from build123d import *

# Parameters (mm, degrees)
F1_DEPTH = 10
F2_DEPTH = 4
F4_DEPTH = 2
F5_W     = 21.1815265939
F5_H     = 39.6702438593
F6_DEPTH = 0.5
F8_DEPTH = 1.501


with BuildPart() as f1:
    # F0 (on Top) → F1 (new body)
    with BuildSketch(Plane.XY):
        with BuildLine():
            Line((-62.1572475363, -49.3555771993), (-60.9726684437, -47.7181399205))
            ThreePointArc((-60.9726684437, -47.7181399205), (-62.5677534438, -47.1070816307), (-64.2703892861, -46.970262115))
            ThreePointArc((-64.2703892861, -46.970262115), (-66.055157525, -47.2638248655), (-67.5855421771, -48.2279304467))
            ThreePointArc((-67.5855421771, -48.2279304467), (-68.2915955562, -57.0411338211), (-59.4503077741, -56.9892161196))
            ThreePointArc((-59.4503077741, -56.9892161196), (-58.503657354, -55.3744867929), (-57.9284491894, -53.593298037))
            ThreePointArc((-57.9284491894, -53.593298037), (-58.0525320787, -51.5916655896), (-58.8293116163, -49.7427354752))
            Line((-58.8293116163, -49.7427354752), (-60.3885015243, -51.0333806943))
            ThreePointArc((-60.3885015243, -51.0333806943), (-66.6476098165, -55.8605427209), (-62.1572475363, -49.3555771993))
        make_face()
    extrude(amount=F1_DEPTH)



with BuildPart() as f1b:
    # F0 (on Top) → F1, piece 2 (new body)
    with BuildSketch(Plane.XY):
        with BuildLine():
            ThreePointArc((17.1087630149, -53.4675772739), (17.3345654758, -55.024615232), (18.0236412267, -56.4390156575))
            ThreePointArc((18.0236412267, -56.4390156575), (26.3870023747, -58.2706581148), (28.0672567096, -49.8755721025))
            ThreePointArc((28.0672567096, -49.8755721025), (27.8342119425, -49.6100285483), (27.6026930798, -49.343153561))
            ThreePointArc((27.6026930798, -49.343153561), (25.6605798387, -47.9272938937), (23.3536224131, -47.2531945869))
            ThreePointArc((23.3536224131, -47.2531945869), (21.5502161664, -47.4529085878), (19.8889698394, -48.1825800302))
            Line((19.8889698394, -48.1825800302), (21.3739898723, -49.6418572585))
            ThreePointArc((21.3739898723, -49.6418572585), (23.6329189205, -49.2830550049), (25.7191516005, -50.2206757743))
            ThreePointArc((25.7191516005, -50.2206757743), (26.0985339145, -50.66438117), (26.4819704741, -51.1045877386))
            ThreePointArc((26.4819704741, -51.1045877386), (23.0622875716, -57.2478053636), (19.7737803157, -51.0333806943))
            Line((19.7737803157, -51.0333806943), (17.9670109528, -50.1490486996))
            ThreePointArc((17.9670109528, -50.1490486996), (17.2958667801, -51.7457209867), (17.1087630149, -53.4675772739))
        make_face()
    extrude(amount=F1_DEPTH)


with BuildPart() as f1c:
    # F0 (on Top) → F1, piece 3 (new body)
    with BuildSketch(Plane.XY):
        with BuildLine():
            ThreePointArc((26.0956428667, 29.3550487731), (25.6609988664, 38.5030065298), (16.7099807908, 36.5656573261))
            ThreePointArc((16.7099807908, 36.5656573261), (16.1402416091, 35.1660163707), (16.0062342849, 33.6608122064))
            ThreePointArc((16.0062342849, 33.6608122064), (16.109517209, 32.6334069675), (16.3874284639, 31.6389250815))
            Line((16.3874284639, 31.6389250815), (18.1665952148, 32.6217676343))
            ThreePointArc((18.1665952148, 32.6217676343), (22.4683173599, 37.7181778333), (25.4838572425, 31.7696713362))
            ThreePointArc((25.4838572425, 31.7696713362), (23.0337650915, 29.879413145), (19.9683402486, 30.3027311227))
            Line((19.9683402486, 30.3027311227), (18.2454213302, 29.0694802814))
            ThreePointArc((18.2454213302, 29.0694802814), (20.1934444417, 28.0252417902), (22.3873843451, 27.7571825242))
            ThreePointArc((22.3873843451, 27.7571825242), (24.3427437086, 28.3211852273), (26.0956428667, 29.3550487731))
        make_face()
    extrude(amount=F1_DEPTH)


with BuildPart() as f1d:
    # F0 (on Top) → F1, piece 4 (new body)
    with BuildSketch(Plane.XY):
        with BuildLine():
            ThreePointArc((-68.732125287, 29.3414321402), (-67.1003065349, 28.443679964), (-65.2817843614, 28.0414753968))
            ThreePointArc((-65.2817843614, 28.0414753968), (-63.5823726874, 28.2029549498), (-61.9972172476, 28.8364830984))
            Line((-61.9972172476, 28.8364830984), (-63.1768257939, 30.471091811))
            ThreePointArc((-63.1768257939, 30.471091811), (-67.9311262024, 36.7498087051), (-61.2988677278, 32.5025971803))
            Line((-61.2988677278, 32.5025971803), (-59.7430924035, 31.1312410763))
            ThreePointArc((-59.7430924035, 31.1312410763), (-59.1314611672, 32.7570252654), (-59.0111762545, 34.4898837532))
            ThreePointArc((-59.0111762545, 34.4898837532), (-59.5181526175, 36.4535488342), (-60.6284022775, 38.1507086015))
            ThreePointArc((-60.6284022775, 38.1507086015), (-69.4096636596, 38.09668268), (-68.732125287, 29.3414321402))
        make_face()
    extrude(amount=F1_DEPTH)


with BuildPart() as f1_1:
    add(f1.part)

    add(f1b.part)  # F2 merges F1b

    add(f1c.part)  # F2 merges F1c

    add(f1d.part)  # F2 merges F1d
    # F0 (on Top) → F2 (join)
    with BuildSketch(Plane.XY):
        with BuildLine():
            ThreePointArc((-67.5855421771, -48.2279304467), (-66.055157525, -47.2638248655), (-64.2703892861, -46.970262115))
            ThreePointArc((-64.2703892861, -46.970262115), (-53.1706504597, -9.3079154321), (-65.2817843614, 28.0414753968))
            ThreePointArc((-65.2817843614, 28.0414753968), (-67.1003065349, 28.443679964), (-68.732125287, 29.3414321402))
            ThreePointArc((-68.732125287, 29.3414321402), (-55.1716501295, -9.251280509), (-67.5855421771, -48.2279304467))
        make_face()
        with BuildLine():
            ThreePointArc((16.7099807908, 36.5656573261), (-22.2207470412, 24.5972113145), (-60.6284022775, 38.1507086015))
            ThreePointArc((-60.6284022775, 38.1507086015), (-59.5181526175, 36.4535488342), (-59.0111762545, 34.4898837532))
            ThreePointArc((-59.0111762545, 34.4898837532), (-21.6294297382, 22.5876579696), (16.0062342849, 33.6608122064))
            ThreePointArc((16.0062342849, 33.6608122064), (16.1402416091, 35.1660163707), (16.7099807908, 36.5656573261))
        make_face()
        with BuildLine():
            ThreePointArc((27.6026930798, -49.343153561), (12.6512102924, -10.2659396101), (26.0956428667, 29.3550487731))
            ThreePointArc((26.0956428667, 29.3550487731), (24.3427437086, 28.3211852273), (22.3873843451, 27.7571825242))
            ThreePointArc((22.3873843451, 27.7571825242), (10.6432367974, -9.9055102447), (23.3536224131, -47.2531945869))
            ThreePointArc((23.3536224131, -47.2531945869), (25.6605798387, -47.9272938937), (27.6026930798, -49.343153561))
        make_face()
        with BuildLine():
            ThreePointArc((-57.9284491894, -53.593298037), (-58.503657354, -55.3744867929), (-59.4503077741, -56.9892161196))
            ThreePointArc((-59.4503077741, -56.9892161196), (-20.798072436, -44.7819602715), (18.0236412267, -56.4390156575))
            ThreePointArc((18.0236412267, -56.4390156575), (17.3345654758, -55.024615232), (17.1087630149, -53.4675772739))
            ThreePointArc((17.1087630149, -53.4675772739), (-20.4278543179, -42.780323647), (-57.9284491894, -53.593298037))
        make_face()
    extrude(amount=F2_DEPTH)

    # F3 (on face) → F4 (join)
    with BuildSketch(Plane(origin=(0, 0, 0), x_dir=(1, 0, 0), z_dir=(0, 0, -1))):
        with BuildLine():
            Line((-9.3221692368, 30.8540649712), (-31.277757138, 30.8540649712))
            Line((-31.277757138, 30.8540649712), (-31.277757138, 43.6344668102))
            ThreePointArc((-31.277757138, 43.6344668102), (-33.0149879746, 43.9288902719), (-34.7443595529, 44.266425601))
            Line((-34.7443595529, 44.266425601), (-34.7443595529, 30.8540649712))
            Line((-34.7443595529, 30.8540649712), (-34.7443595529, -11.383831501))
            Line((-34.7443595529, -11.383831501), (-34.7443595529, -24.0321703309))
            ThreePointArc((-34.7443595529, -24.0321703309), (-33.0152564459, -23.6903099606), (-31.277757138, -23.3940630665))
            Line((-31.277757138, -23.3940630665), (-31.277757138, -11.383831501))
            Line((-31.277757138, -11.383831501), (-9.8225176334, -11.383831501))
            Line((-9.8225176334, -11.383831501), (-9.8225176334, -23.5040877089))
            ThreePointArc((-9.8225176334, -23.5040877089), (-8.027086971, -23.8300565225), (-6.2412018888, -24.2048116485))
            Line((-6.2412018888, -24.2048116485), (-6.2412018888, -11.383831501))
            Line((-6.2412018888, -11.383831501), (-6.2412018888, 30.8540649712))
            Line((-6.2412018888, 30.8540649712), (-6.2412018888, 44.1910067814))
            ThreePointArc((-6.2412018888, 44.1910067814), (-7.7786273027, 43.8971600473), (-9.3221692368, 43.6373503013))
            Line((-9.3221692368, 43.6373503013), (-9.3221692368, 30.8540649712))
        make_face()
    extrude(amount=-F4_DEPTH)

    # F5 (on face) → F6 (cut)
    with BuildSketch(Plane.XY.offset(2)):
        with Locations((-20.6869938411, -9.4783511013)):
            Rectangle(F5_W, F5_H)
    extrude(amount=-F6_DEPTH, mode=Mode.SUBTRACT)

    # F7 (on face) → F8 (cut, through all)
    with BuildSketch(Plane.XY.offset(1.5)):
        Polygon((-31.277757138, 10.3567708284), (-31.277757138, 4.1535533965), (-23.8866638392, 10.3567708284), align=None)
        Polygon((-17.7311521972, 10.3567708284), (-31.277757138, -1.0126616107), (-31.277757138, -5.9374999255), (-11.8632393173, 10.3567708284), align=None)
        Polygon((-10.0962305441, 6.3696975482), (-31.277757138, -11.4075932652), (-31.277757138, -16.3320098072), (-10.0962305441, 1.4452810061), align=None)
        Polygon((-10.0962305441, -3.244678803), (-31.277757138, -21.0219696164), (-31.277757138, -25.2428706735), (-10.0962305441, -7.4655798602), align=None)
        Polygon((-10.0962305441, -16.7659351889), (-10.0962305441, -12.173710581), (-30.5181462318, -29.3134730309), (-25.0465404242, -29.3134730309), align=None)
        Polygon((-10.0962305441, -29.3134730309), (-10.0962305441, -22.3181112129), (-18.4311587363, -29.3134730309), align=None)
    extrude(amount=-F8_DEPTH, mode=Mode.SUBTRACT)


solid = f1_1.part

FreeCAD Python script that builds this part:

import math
import FreeCAD as App
import Part
import Sketcher


def add_polygon(sketch, points):
    """Adds a closed chain of lines whose ends are joined by coincident constraints."""
    first, n = sketch.GeometryCount, len(points)
    for a, b in zip(points, points[1:] + points[:1]):
        sketch.addGeometry(Part.LineSegment(App.Vector(*a, 0), App.Vector(*b, 0)), False)
    for i in range(n):
        sketch.addConstraint(Sketcher.Constraint("Coincident", first + i, 2, first + (i + 1) % n, 1))

doc = App.newDocument("Part")
params = doc.addObject("Spreadsheet::Sheet", "Params")
for row, (alias, value) in enumerate([
    ("sketch1_radius", "6 mm"),
    ("sketch1_radius2", "4 mm"),
    ("pad1_length", "10 mm"),
    ("sketch2_radius", "6 mm"),
    ("sketch2_radius2", "4 mm"),
    ("pad2_length", "10 mm"),
    ("sketch3_radius", "6 mm"),
    ("sketch3_radius2", "4 mm"),
    ("pad3_length", "10 mm"),
    ("sketch4_radius", "6 mm"),
    ("sketch4_radius2", "4 mm"),
    ("pad4_length", "10 mm"),
    ("pad5_length", "4 mm"),
    ("pad6_length", "2 mm"),
    ("pocket1_length", "0.5 mm"),
], start=1):
    params.set(f"A{row}", alias)
    params.set(f"B{row}", "=" + value)
    params.setAlias(f"B{row}", alias)

body = doc.addObject("PartDesign::Body", "Body")

sketch1 = body.newObject("Sketcher::SketchObject", "Sketch")
sketch1.AttachmentSupport = (doc.getObject("XY_Plane"), [""])
sketch1.MapMode = "FlatFace"
sketch1.addGeometry(Part.LineSegment(App.Vector(-62.2, -49.4, 0), App.Vector(-61, -47.7, 0)), False)
sketch1.addGeometry(Part.ArcOfCircle(Part.Circle(App.Vector(-63.9, -53, 0), App.Vector(0, 0, 1), 6), math.radians(61), math.radians(94)), False)
sketch1.addGeometry(Part.ArcOfCircle(Part.Circle(App.Vector(-64.4, -51.5, 0), App.Vector(0, 0, 1), 4.6), math.radians(88), math.radians(134)), False)
sketch1.addGeometry(Part.ArcOfCircle(Part.Circle(App.Vector(-63.9, -53, 0), App.Vector(0, 0, 1), 6), math.radians(128), math.radians(318)), False)
sketch1.addGeometry(Part.ArcOfCircle(Part.Circle(App.Vector(-66.4, -51.9, 0), App.Vector(0, 0, 1), 8.6), math.radians(-37), math.radians(-12)), False)
sketch1.addGeometry(Part.ArcOfCircle(Part.Circle(App.Vector(-63.9, -53, 0), App.Vector(0, 0, 1), 6), math.radians(-6), math.radians(32)), False)
sketch1.addGeometry(Part.LineSegment(App.Vector(-58.8, -49.7, 0), App.Vector(-60.4, -51, 0)), False)
sketch1.addGeometry(Part.ArcOfCircle(Part.Circle(App.Vector(-63.9, -53, 0), App.Vector(0, 0, 1), 4), math.radians(64), math.radians(389)), False)
sketch1.addConstraint(Sketcher.Constraint("Coincident", 0, 2, 1, 1))
sketch1.addConstraint(Sketcher.Constraint("Coincident", 1, 2, 2, 1))
sketch1.addConstraint(Sketcher.Constraint("Coincident", 2, 2, 3, 1))
sketch1.addConstraint(Sketcher.Constraint("Coincident", 3, 2, 4, 1))
sketch1.addConstraint(Sketcher.Constraint("Coincident", 4, 2, 5, 1))
sketch1.addConstraint(Sketcher.Constraint("Coincident", 5, 2, 6, 1))
sketch1.addConstraint(Sketcher.Constraint("Coincident", 6, 2, 7, 2))
sketch1.addConstraint(Sketcher.Constraint("Coincident", 7, 1, 0, 1))
sketch1.addConstraint(Sketcher.Constraint("Coincident", 3, 3, 1, 3))
sketch1.addConstraint(Sketcher.Constraint("Coincident", 5, 3, 1, 3))
sketch1.addConstraint(Sketcher.Constraint("Coincident", 7, 3, 1, 3))
sketch1.addConstraint(Sketcher.Constraint("Equal", 1, 3))
sketch1.addConstraint(Sketcher.Constraint("Equal", 3, 5))
sketch1.addConstraint(Sketcher.Constraint("Radius", 1, 6.0))
sketch1.addConstraint(Sketcher.Constraint("Radius", 7, 4.0))
sketch1.addConstraint(Sketcher.Constraint("Radius", 2, 4.561761))
sketch1.addConstraint(Sketcher.Constraint("Radius", 4, 8.607347))
sketch1.addConstraint(Sketcher.Constraint("DistanceY", 4, 2, -1, 1, 53.593298))
sketch1.addConstraint(Sketcher.Constraint("DistanceX", 6, 2, -1, 1, 60.388502))
sketch1.addConstraint(Sketcher.Constraint("DistanceX", 2, 3, 1, 2, 0.166699))
sketch1.addConstraint(Sketcher.Constraint("DistanceY", 2, 3, 7, 1, 2.173399))
sketch1.addConstraint(Sketcher.Constraint("DistanceX", 2, 3, -1, 1, 64.437089))
sketch1.addConstraint(Sketcher.Constraint("DistanceX", 4, 3, -1, 1, 66.35833))
sketch1.addConstraint(Sketcher.Constraint("DistanceX", 0, 2, -1, 1, 60.972668))
sketch1.addConstraint(Sketcher.Constraint("DistanceY", 0, 2, -1, 1, 47.71814))
sketch1.addConstraint(Sketcher.Constraint("DistanceY", 2, 2, -1, 1, 48.22793))
sketch1.addConstraint(Sketcher.Constraint("DistanceX", 5, 2, -1, 1, 58.829312))
sketch1.setExpression("Constraints[13]", "Params.sketch1_radius")
sketch1.setExpression("Constraints[14]", "Params.sketch1_radius2")
pad1 = body.newObject("PartDesign::Pad", "Pad")
pad1.Profile = sketch1
pad1.setExpression("Length", "Params.pad1_length")
body2 = doc.addObject("PartDesign::Body", "Body001")

sketch2 = body2.newObject("Sketcher::SketchObject", "Sketch001")
sketch2.AttachmentSupport = (doc.getObject("XY_Plane001"), [""])
sketch2.MapMode = "FlatFace"
sketch2.addGeometry(Part.ArcOfCircle(Part.Circle(App.Vector(22.2, -53.5, 0), App.Vector(0, 0, 1), 5.1), math.radians(179), math.radians(215)), False)
sketch2.addGeometry(Part.ArcOfCircle(Part.Circle(App.Vector(23.1, -53.2, 0), App.Vector(0, 0, 1), 6), math.radians(-148), math.radians(34)), False)
sketch2.addGeometry(Part.ArcOfCircle(Part.Circle(App.Vector(74.3, -9.1, 0), App.Vector(0, 0, 1), 61.6), math.radians(-139.22), math.radians(-138.57)), False)
sketch2.addGeometry(Part.ArcOfCircle(Part.Circle(App.Vector(22.6, -54.2, 0), App.Vector(0, 0, 1), 7), math.radians(44), math.radians(84)), False)
sketch2.addGeometry(Part.ArcOfCircle(Part.Circle(App.Vector(23.1, -53.2, 0), App.Vector(0, 0, 1), 6), math.radians(88), math.radians(122)), False)
sketch2.addGeometry(Part.LineSegment(App.Vector(19.9, -48.2, 0), App.Vector(21.4, -49.6, 0)), False)
sketch2.addGeometry(Part.ArcOfCircle(Part.Circle(App.Vector(23.1, -53.2, 0), App.Vector(0, 0, 1), 4), math.radians(49), math.radians(116)), False)
sketch2.addGeometry(Part.ArcOfCircle(Part.Circle(App.Vector(74.3, -9.1, 0), App.Vector(0, 0, 1), 63.6), math.radians(-139.73), math.radians(-138.68)), False)
sketch2.addGeometry(Part.ArcOfCircle(Part.Circle(App.Vector(23.1, -53.2, 0), App.Vector(0, 0, 1), 4), math.radians(146), math.radians(392)), False)
sketch2.addGeometry(Part.LineSegment(App.Vector(19.8, -51, 0), App.Vector(18, -50.1, 0)), False)
sketch2.addGeometry(Part.ArcOfCircle(Part.Circle(App.Vector(23.1, -53.2, 0), App.Vector(0, 0, 1), 6), math.radians(149), math.radians(182)), False)
sketch2.addConstraint(Sketcher.Constraint("Coincident", 0, 2, 1, 1))
sketch2.addConstraint(Sketcher.Constraint("Coincident", 1, 2, 2, 2))
sketch2.addConstraint(Sketcher.Constraint("Coincident", 2, 1, 3, 1))
sketch2.addConstraint(Sketcher.Constraint("Coincident", 3, 2, 4, 1))
sketch2.addConstraint(Sketcher.Constraint("Coincident", 4, 2, 5, 1))
sketch2.addConstraint(Sketcher.Constraint("Coincident", 5, 2, 6, 2))
sketch2.addConstraint(Sketcher.Constraint("Coincident", 6, 1, 7, 1))
sketch2.addConstraint(Sketcher.Constraint("Coincident", 7, 2, 8, 2))
sketch2.addConstraint(Sketcher.Constraint("Coincident", 8, 1, 9, 1))
sketch2.addConstraint(Sketcher.Constraint("Coincident", 9, 2, 10, 1))
sketch2.addConstraint(Sketcher.Constraint("Coincident", 10, 2, 0, 1))
sketch2.addConstraint(Sketcher.Constraint("Coincident", 4, 3, 1, 3))
sketch2.addConstraint(Sketcher.Constraint("Coincident", 6, 3, 1, 3))
sketch2.addConstraint(Sketcher.Constraint("Coincident", 7, 3, 2, 3))
sketch2.addConstraint(Sketcher.Constraint("Coincident", 8, 3, 1, 3))
sketch2.addConstraint(Sketcher.Constraint("Coincident", 10, 3, 1, 3))
sketch2.addConstraint(Sketcher.Constraint("Equal", 1, 4))
sketch2.addConstraint(Sketcher.Constraint("Equal", 6, 8))
sketch2.addConstraint(Sketcher.Constraint("Equal", 4, 10))
sketch2.addConstraint(Sketcher.Constraint("Radius", 1, 6.0))
sketch2.addConstraint(Sketcher.Constraint("Radius", 6, 4.0))
sketch2.addConstraint(Sketcher.Constraint("Radius", 7, 63.639502))
sketch2.addConstraint(Sketcher.Constraint("Radius", 2, 61.63755))
sketch2.addConstraint(Sketcher.Constraint("Radius", 0, 5.106617))
sketch2.addConstraint(Sketcher.Constraint("Radius", 3, 6.987953))
sketch2.addConstraint(Sketcher.Constraint("DistanceX", 5, 2, 0, 3, 0.841101))
sketch2.addConstraint(Sketcher.Constraint("DistanceY", 8, 1, 4, 2, 2.850801))
sketch2.addConstraint(Sketcher.Constraint("DistanceY", 0, 3, 9, 2, 3.372898))
sketch2.addConstraint(Sketcher.Constraint("Distance", 9, 2.011581))
sketch2.addConstraint(Sketcher.Constraint("DistanceX", -1, 1, 0, 3, 22.215091))
sketch2.addConstraint(Sketcher.Constraint("DistanceY", 1, 3, -1, 1, 53.248031))
sketch2.addConstraint(Sketcher.Constraint("DistanceX", -1, 1, 2, 3, 74.277461))
sketch2.addConstraint(Sketcher.Constraint("DistanceY", 2, 3, -1, 1, 9.085811))
sketch2.addConstraint(Sketcher.Constraint("DistanceX", -1, 1, 3, 3, 22.576359))
sketch2.addConstraint(Sketcher.Constraint("DistanceX", -1, 1, 0, 2, 18.023641))
sketch2.addConstraint(Sketcher.Constraint("DistanceX", -1, 1, 4, 2, 19.88897))
sketch2.addConstraint(Sketcher.Constraint("DistanceY", 3, 3, 0, 3, 0.675839))
sketch2.setExpression("Constraints[19]", "Params.sketch2_radius")
sketch2.setExpression("Constraints[20]", "Params.sketch2_radius2")
pad2 = body2.newObject("PartDesign::Pad", "Pad001")
pad2.Profile = sketch2
pad2.setExpression("Length", "Params.pad2_length")
body3 = doc.addObject("PartDesign::Body", "Body002")

sketch3 = body3.newObject("Sketcher::SketchObject", "Sketch002")
sketch3.AttachmentSupport = (doc.getObject("XY_Plane002"), [""])
sketch3.MapMode = "FlatFace"
sketch3.addGeometry(Part.ArcOfCircle(Part.Circle(App.Vector(22, 33.7, 0), App.Vector(0, 0, 1), 6), math.radians(-47), math.radians(152)), False)
sketch3.addGeometry(Part.ArcOfCircle(Part.Circle(App.Vector(21.1, 34, 0), App.Vector(0, 0, 1), 5.1), math.radians(149), math.radians(183)), False)
sketch3.addGeometry(Part.ArcOfCircle(Part.Circle(App.Vector(22, 33.7, 0), App.Vector(0, 0, 1), 6), math.radians(-179.2), math.radians(-159.45)), False)
sketch3.addGeometry(Part.LineSegment(App.Vector(16.4, 31.6, 0), App.Vector(18.2, 32.6, 0)), False)
sketch3.addGeometry(Part.ArcOfCircle(Part.Circle(App.Vector(22, 33.7, 0), App.Vector(0, 0, 1), 4), math.radians(-30), math.radians(196)), False)
sketch3.addGeometry(Part.ArcOfCircle(Part.Circle(App.Vector(22, 33.7, 0), App.Vector(0, 0, 1), 4), math.radians(-121), math.radians(-30)), False)
sketch3.addGeometry(Part.LineSegment(App.Vector(20, 30.3, 0), App.Vector(18.2, 29.1, 0)), False)
sketch3.addGeometry(Part.ArcOfCircle(Part.Circle(App.Vector(22, 33.7, 0), App.Vector(0, 0, 1), 6), math.radians(-129), math.radians(-86)), False)
sketch3.addGeometry(Part.ArcOfCircle(Part.Circle(App.Vector(21.1, 35.8, 0), App.Vector(0, 0, 1), 8.1), math.radians(-81), math.radians(-52)), False)
sketch3.addConstraint(Sketcher.Constraint("Coincident", 0, 2, 1, 1))
sketch3.addConstraint(Sketcher.Constraint("Coincident", 1, 2, 2, 1))
sketch3.addConstraint(Sketcher.Constraint("Coincident", 2, 2, 3, 1))
sketch3.addConstraint(Sketcher.Constraint("Coincident", 3, 2, 4, 2))
sketch3.addConstraint(Sketcher.Constraint("Tangent", 4, 1, 5, 2))
sketch3.addConstraint(Sketcher.Constraint("Coincident", 5, 1, 6, 1))
sketch3.addConstraint(Sketcher.Constraint("Coincident", 6, 2, 7, 1))
sketch3.addConstraint(Sketcher.Constraint("Coincident", 7, 2, 8, 1))
sketch3.addConstraint(Sketcher.Constraint("Coincident", 8, 2, 0, 1))
sketch3.addConstraint(Sketcher.Constraint("Coincident", 2, 3, 0, 3))
sketch3.addConstraint(Sketcher.Constraint("Coincident", 4, 3, 0, 3))
sketch3.addConstraint(Sketcher.Constraint("Coincident", 7, 3, 0, 3))
sketch3.addConstraint(Sketcher.Constraint("Equal", 0, 2))
sketch3.addConstraint(Sketcher.Constraint("Equal", 4, 5))
sketch3.addConstraint(Sketcher.Constraint("Equal", 2, 7))
sketch3.addConstraint(Sketcher.Constraint("Radius", 0, 6.0))
sketch3.addConstraint(Sketcher.Constraint("Radius", 4, 4.0))
sketch3.addConstraint(Sketcher.Constraint("DistanceX", 2, 3, 8, 2, 4.09))
sketch3.addConstraint(Sketcher.Constraint("Radius", 1, 5.093487))
sketch3.addConstraint(Sketcher.Constraint("Radius", 8, 8.094866))
sketch3.addConstraint(Sketcher.Constraint("DistanceX", 2, 2, 1, 3, 4.703098))
sketch3.addConstraint(Sketcher.Constraint("DistanceY", 2, 2, 0, 3, 2.106101))
sketch3.addConstraint(Sketcher.Constraint("Distance", 6, 2.11881))
sketch3.addConstraint(Sketcher.Constraint("DistanceY", -1, 1, 1, 3, 33.966728))
sketch3.addConstraint(Sketcher.Constraint("DistanceX", -1, 1, 8, 3, 21.139439))
sketch3.addConstraint(Sketcher.Constraint("DistanceX", -1, 1, 0, 2, 16.709981))
sketch3.addConstraint(Sketcher.Constraint("DistanceX", -1, 1, 2, 2, 16.387428))
sketch3.addConstraint(Sketcher.Constraint("DistanceY", -1, 1, 4, 1, 31.769671))
sketch3.addConstraint(Sketcher.Constraint("DistanceX", -1, 1, 5, 1, 19.96834))
sketch3.addConstraint(Sketcher.Constraint("DistanceX", 1, 2, 3, 2, 2.160361))
sketch3.setExpression("Constraints[15]", "Params.sketch3_radius")
sketch3.setExpression("Constraints[16]", "Params.sketch3_radius2")
pad3 = body3.newObject("PartDesign::Pad", "Pad002")
pad3.Profile = sketch3
pad3.setExpression("Length", "Params.pad3_length")
body4 = doc.addObject("PartDesign::Body", "Body003")

sketch4 = body4.newObject("Sketcher::SketchObject", "Sketch003")
sketch4.AttachmentSupport = (doc.getObject("XY_Plane003"), [""])
sketch4.MapMode = "FlatFace"
sketch4.addGeometry(Part.ArcOfCircle(Part.Circle(App.Vector(-64.8, 34.6, 0), App.Vector(0, 0, 1), 6.6), math.radians(-127), math.radians(-94)), False)
sketch4.addGeometry(Part.ArcOfCircle(Part.Circle(App.Vector(-65, 34, 0), App.Vector(0, 0, 1), 6), math.radians(-93), math.radians(-60)), False)
sketch4.addGeometry(Part.LineSegment(App.Vector(-62, 28.8, 0), App.Vector(-63.2, 30.5, 0)), False)
sketch4.addGeometry(Part.ArcOfCircle(Part.Circle(App.Vector(-65, 34, 0), App.Vector(0, 0, 1), 4), math.radians(-23), math.radians(297)), False)
sketch4.addGeometry(Part.LineSegment(App.Vector(-61.3, 32.5, 0), App.Vector(-59.7, 31.1, 0)), False)
sketch4.addGeometry(Part.ArcOfCircle(Part.Circle(App.Vector(-65, 34, 0), App.Vector(0, 0, 1), 6), math.radians(-29), math.radians(4)), False)
sketch4.addGeometry(Part.ArcOfCircle(Part.Circle(App.Vector(-65.2, 33.9, 0), App.Vector(0, 0, 1), 6.2), math.radians(5), math.radians(43)), False)
sketch4.addGeometry(Part.ArcOfCircle(Part.Circle(App.Vector(-65, 34, 0), App.Vector(0, 0, 1), 6), math.radians(43), math.radians(231)), False)
sketch4.addConstraint(Sketcher.Constraint("Coincident", 0, 2, 1, 1))
sketch4.addConstraint(Sketcher.Constraint("Coincident", 1, 2, 2, 1))
sketch4.addConstraint(Sketcher.Constraint("Coincident", 2, 2, 3, 2))
sketch4.addConstraint(Sketcher.Constraint("Coincident", 3, 1, 4, 1))
sketch4.addConstraint(Sketcher.Constraint("Coincident", 4, 2, 5, 1))
sketch4.addConstraint(Sketcher.Constraint("Coincident", 5, 2, 6, 1))
sketch4.addConstraint(Sketcher.Constraint("Coincident", 6, 2, 7, 1))
sketch4.addConstraint(Sketcher.Constraint("Coincident", 7, 2, 0, 1))
sketch4.addConstraint(Sketcher.Constraint("Coincident", 3, 3, 1, 3))
sketch4.addConstraint(Sketcher.Constraint("Coincident", 5, 3, 1, 3))
sketch4.addConstraint(Sketcher.Constraint("Coincident", 7, 3, 1, 3))
sketch4.addConstraint(Sketcher.Constraint("Equal", 1, 5))
sketch4.addConstraint(Sketcher.Constraint("Equal", 5, 7))
sketch4.addConstraint(Sketcher.Constraint("Radius", 1, 6.0))
sketch4.addConstraint(Sketcher.Constraint("Radius", 3, 4.0))
sketch4.addConstraint(Sketcher.Constraint("Radius", 0, 6.550423))
sketch4.addConstraint(Sketcher.Constraint("Radius", 6, 6.236383))
sketch4.addConstraint(Sketcher.Constraint("Distance", 4, 2.073898))
sketch4.addConstraint(Sketcher.Constraint("DistanceX", 5, 3, 5, 2, 5.982699))
sketch4.addConstraint(Sketcher.Constraint("DistanceX", 7, 2, 2, 2, 5.555299))
sketch4.addConstraint(Sketcher.Constraint("DistanceX", 6, 3, -1, 1, 65.222689))
sketch4.addConstraint(Sketcher.Constraint("DistanceY", -1, 1, 6, 3, 33.933482))
sketch4.addConstraint(Sketcher.Constraint("DistanceY", -1, 1, 2, 2, 30.471092))
sketch4.addConstraint(Sketcher.Constraint("DistanceY", -1, 1, 4, 2, 31.131241))
sketch4.addConstraint(Sketcher.Constraint("DistanceY", -1, 1, 6, 2, 38.150709))
sketch4.addConstraint(Sketcher.Constraint("DistanceX", 1, 3, 0, 3, 0.203041))
sketch4.addConstraint(Sketcher.Constraint("DistanceY", 1, 2, 5, 3, 5.198081))
sketch4.setExpression("Constraints[13]", "Params.sketch4_radius")
sketch4.setExpression("Constraints[14]", "Params.sketch4_radius2")
pad4 = body4.newObject("PartDesign::Pad", "Pad003")
pad4.Profile = sketch4
pad4.setExpression("Length", "Params.pad4_length")
body.AllowCompound = True
doc.recompute()

boolean = body.newObject("PartDesign::Boolean", "Boolean")
boolean.Type = "Fuse"
boolean.addObjects([body2])
doc.recompute()

boolean2 = body.newObject("PartDesign::Boolean", "Boolean001")
boolean2.Type = "Fuse"
boolean2.addObjects([body3])
doc.recompute()

boolean3 = body.newObject("PartDesign::Boolean", "Boolean002")
boolean3.Type = "Fuse"
boolean3.addObjects([body4])

sketch5 = body.newObject("Sketcher::SketchObject", "Sketch004")
sketch5.AttachmentSupport = (doc.getObject("XY_Plane"), [""])
sketch5.MapMode = "FlatFace"
sketch5.addGeometry(Part.ArcOfCircle(Part.Circle(App.Vector(-64.4, -51.5, 0), App.Vector(0, 0, 1), 4.6), math.radians(88), math.radians(134)), False)
sketch5.addGeometry(Part.ArcOfCircle(Part.Circle(App.Vector(-119.6, -10.2, 0), App.Vector(0, 0, 1), 66.4), math.radians(-34), math.radians(35)), False)
sketch5.addGeometry(Part.ArcOfCircle(Part.Circle(App.Vector(-64.8, 34.6, 0), App.Vector(0, 0, 1), 6.6), math.radians(-127), math.radians(-94)), False)
sketch5.addGeometry(Part.ArcOfCircle(Part.Circle(App.Vector(-119.6, -10.2, 0), App.Vector(0, 0, 1), 64.4), math.radians(-36), math.radians(38)), False)
sketch5.addGeometry(Part.ArcOfCircle(Part.Circle(App.Vector(-20.9, 89.6, 0), App.Vector(0, 0, 1), 65), math.radians(-128), math.radians(-55)), False)
sketch5.addGeometry(Part.ArcOfCircle(Part.Circle(App.Vector(-65.2, 33.9, 0), App.Vector(0, 0, 1), 6.2), math.radians(5), math.radians(43)), False)
sketch5.addGeometry(Part.ArcOfCircle(Part.Circle(App.Vector(-20.9, 89.6, 0), App.Vector(0, 0, 1), 67), math.radians(-125), math.radians(-57)), False)
sketch5.addGeometry(Part.ArcOfCircle(Part.Circle(App.Vector(21.1, 34, 0), App.Vector(0, 0, 1), 5.1), math.radians(149), math.radians(183)), False)
sketch5.addGeometry(Part.ArcOfCircle(Part.Circle(App.Vector(74.3, -9.1, 0), App.Vector(0, 0, 1), 61.6), math.radians(141), math.radians(221)), False)
sketch5.addGeometry(Part.ArcOfCircle(Part.Circle(App.Vector(21.1, 35.8, 0), App.Vector(0, 0, 1), 8.1), math.radians(-81), math.radians(-52)), False)
sketch5.addGeometry(Part.ArcOfCircle(Part.Circle(App.Vector(74.3, -9.1, 0), App.Vector(0, 0, 1), 63.6), math.radians(145), math.radians(217)), False)
sketch5.addGeometry(Part.ArcOfCircle(Part.Circle(App.Vector(22.6, -54.2, 0), App.Vector(0, 0, 1), 7), math.radians(44), math.radians(84)), False)
sketch5.addGeometry(Part.ArcOfCircle(Part.Circle(App.Vector(-66.4, -51.9, 0), App.Vector(0, 0, 1), 8.6), math.radians(-37), math.radians(-12)), False)
sketch5.addGeometry(Part.ArcOfCircle(Part.Circle(App.Vector(-20.3, -113.6, 0), App.Vector(0, 0, 1), 68.8), math.radians(56), math.radians(125)), False)
sketch5.addGeometry(Part.ArcOfCircle(Part.Circle(App.Vector(22.2, -53.5, 0), App.Vector(0, 0, 1), 5.1), math.radians(179), math.radians(215)), False)
sketch5.addGeometry(Part.ArcOfCircle(Part.Circle(App.Vector(-20.3, -113.6, 0), App.Vector(0, 0, 1), 70.8), math.radians(58), math.radians(122)), False)
sketch5.addConstraint(Sketcher.Constraint("Coincident", 0, 1, 1, 1))
sketch5.addConstraint(Sketcher.Constraint("Coincident", 1, 2, 2, 2))
sketch5.addConstraint(Sketcher.Constraint("Coincident", 2, 1, 3, 2))
sketch5.addConstraint(Sketcher.Constraint("Coincident", 3, 1, 0, 2))
sketch5.addConstraint(Sketcher.Constraint("Coincident", 4, 1, 5, 2))
sketch5.addConstraint(Sketcher.Constraint("Coincident", 5, 1, 6, 1))
sketch5.addConstraint(Sketcher.Constraint("Coincident", 6, 2, 7, 2))
sketch5.addConstraint(Sketcher.Constraint("Coincident", 7, 1, 4, 2))
sketch5.addConstraint(Sketcher.Constraint("Coincident", 8, 1, 9, 2))
sketch5.addConstraint(Sketcher.Constraint("Coincident", 9, 1, 10, 1))
sketch5.addConstraint(Sketcher.Constraint("Coincident", 10, 2, 11, 2))
sketch5.addConstraint(Sketcher.Constraint("Coincident", 11, 1, 8, 2))
sketch5.addConstraint(Sketcher.Constraint("Coincident", 12, 1, 13, 2))
sketch5.addConstraint(Sketcher.Constraint("Coincident", 13, 1, 14, 2))
sketch5.addConstraint(Sketcher.Constraint("Coincident", 14, 1, 15, 1))
sketch5.addConstraint(Sketcher.Constraint("Coincident", 15, 2, 12, 2))
sketch5.addConstraint(Sketcher.Constraint("Coincident", 3, 3, 1, 3))
sketch5.addConstraint(Sketcher.Constraint("Coincident", 6, 3, 4, 3))
sketch5.addConstraint(Sketcher.Constraint("Coincident", 10, 3, 8, 3))
sketch5.addConstraint(Sketcher.Constraint("Coincident", 15, 3, 13, 3))
sketch5.addConstraint(Sketcher.Constraint("Radius", 0, 4.561761))
sketch5.addConstraint(Sketcher.Constraint("Radius", 1, 66.41355))
sketch5.addConstraint(Sketcher.Constraint("Radius", 3, 64.41355))
sketch5.addConstraint(Sketcher.Constraint("Radius", 8, 61.637548))
sketch5.addConstraint(Sketcher.Constraint("Radius", 13, 68.84636))
sketch5.addConstraint(Sketcher.Constraint("Radius", 15, 70.84636))
sketch5.addConstraint(Sketcher.Constraint("Radius", 2, 6.550423))
sketch5.addConstraint(Sketcher.Constraint("Radius", 4, 64.983178))
sketch5.addConstraint(Sketcher.Constraint("Radius", 5, 6.236383))
sketch5.addConstraint(Sketcher.Constraint("Radius", 6, 66.983178))
sketch5.addConstraint(Sketcher.Constraint("Radius", 7, 5.093487))
sketch5.addConstraint(Sketcher.Constraint("Radius", 9, 8.094866))
sketch5.addConstraint(Sketcher.Constraint("Radius", 10, 63.639502))
sketch5.addConstraint(Sketcher.Constraint("Radius", 11, 6.987953))
sketch5.addConstraint(Sketcher.Constraint("Radius", 12, 8.607347))
sketch5.addConstraint(Sketcher.Constraint("Radius", 14, 5.106617))
sketch5.addConstraint(Sketcher.Constraint("DistanceY", 1, 3, -1, 1, 10.203298))
sketch5.addConstraint(Sketcher.Constraint("DistanceY", 15, 2, -1, 1, 53.593298))
sketch5.addConstraint(Sketcher.Constraint("DistanceX", 5, 3, 0, 3, 0.7856))
sketch5.addConstraint(Sketcher.Constraint("DistanceY", 2, 3, 9, 3, 1.1818))
sketch5.addConstraint(Sketcher.Constraint("DistanceX", 11, 3, 8, 3, 51.701101))
sketch5.addConstraint(Sketcher.Constraint("DistanceY", 13, 3, 11, 3, 59.428798))
sketch5.addConstraint(Sketcher.Constraint("DistanceX", 0, 3, 0, 1, 0.166699))
sketch5.addConstraint(Sketcher.Constraint("DistanceX", 0, 3, -1, 1, 64.437089))
sketch5.addConstraint(Sketcher.Constraint("DistanceY", -1, 1, 5, 3, 33.933482))
sketch5.addConstraint(Sketcher.Constraint("DistanceY", -1, 1, 7, 3, 33.966728))
sketch5.addConstraint(Sketcher.Constraint("DistanceX", -1, 1, 8, 3, 74.27746))
sketch5.addConstraint(Sketcher.Constraint("DistanceX", -1, 1, 9, 3, 21.139439))
sketch5.addConstraint(Sketcher.Constraint("DistanceX", 12, 3, -1, 1, 66.35833))
sketch5.addConstraint(Sketcher.Constraint("DistanceX", -1, 1, 14, 3, 22.215091))
sketch5.addConstraint(Sketcher.Constraint("DistanceY", 3, 1, -1, 1, 48.22793))
sketch5.addConstraint(Sketcher.Constraint("DistanceY", -1, 1, 4, 1, 38.150709))
sketch5.addConstraint(Sketcher.Constraint("DistanceX", -1, 1, 7, 1, 16.709981))
sketch5.addConstraint(Sketcher.Constraint("DistanceY", -1, 1, 8, 1, 29.355049))
sketch5.addConstraint(Sketcher.Constraint("DistanceX", -1, 1, 13, 1, 18.023641))
sketch5.addConstraint(Sketcher.Constraint("DistanceX", 15, 2, -1, 1, 57.928449))
sketch5.addConstraint(Sketcher.Constraint("DistanceX", 1, 3, 2, 3, 54.78733))
sketch5.addConstraint(Sketcher.Constraint("DistanceY", 0, 3, 2, 3, 86.102451))
sketch5.addConstraint(Sketcher.Constraint("DistanceX", 2, 3, 4, 3, 43.901638))
sketch5.addConstraint(Sketcher.Constraint("DistanceY", 11, 3, 0, 3, 2.66881))
pad5 = body.newObject("PartDesign::Pad", "Pad004")
pad5.Profile = sketch5
pad5.setExpression("Length", "Params.pad5_length")

sketch6 = body.newObject("Sketcher::SketchObject", "Sketch005")
sketch6.AttachmentSupport = (doc.getObject("XY_Plane"), [""])
sketch6.MapMode = "FlatFace"
sketch6.addGeometry(Part.LineSegment(App.Vector(-9.3, -30.9, 0), App.Vector(-31.3, -30.9, 0)), False)
sketch6.addGeometry(Part.LineSegment(App.Vector(-31.3, -30.9, 0), App.Vector(-31.3, -43.6, 0)), False)
sketch6.addGeometry(Part.ArcOfCircle(Part.Circle(App.Vector(-20.3, -113.6, 0), App.Vector(0, 0, 1), 70.8), math.radians(98.91), math.radians(101.76)), False)
sketch6.addGeometry(Part.LineSegment(App.Vector(-34.7, -44.3, 0), App.Vector(-34.7, 24, 0)), False)
sketch6.addGeometry(Part.ArcOfCircle(Part.Circle(App.Vector(-20.9, 89.6, 0), App.Vector(0, 0, 1), 67), math.radians(-101.94), math.radians(-98.92)), False)
sketch6.addGeometry(Part.LineSegment(App.Vector(-31.3, 23.4, 0), App.Vector(-31.3, 11.4, 0)), False)
sketch6.addGeometry(Part.LineSegment(App.Vector(-31.3, 11.4, 0), App.Vector(-9.8, 11.4, 0)), False)
sketch6.addGeometry(Part.LineSegment(App.Vector(-9.8, 11.4, 0), App.Vector(-9.8, 23.5, 0)), False)
sketch6.addGeometry(Part.ArcOfCircle(Part.Circle(App.Vector(-20.9, 89.6, 0), App.Vector(0, 0, 1), 67), math.radians(-80.49), math.radians(-77.37)), False)
sketch6.addGeometry(Part.LineSegment(App.Vector(-6.2, 24.2, 0), App.Vector(-6.2, -44.2, 0)), False)
sketch6.addGeometry(Part.ArcOfCircle(Part.Circle(App.Vector(-20.3, -113.6, 0), App.Vector(0, 0, 1), 70.8), math.radians(78.55), math.radians(81.08)), False)
sketch6.addGeometry(Part.LineSegment(App.Vector(-9.3, -43.6, 0), App.Vector(-9.3, -30.9, 0)), False)
sketch6.addConstraint(Sketcher.Constraint("Coincident", 0, 2, 1, 1))
sketch6.addConstraint(Sketcher.Constraint("Coincident", 1, 2, 2, 1))
sketch6.addConstraint(Sketcher.Constraint("Coincident", 2, 2, 3, 1))
sketch6.addConstraint(Sketcher.Constraint("Coincident", 3, 2, 4, 1))
sketch6.addConstraint(Sketcher.Constraint("Coincident", 4, 2, 5, 1))
sketch6.addConstraint(Sketcher.Constraint("Coincident", 5, 2, 6, 1))
sketch6.addConstraint(Sketcher.Constraint("Coincident", 6, 2, 7, 1))
sketch6.addConstraint(Sketcher.Constraint("Coincident", 7, 2, 8, 1))
sketch6.addConstraint(Sketcher.Constraint("Coincident", 8, 2, 9, 1))
sketch6.addConstraint(Sketcher.Constraint("Coincident", 9, 2, 10, 1))
sketch6.addConstraint(Sketcher.Constraint("Coincident", 10, 2, 11, 1))
sketch6.addConstraint(Sketcher.Constraint("Coincident", 11, 2, 0, 1))
sketch6.addConstraint(Sketcher.Constraint("Horizontal", 0))
sketch6.addConstraint(Sketcher.Constraint("Vertical", 1))
sketch6.addConstraint(Sketcher.Constraint("Vertical", 3))
sketch6.addConstraint(Sketcher.Constraint("Vertical", 5))
sketch6.addConstraint(Sketcher.Constraint("Horizontal", 6))
sketch6.addConstraint(Sketcher.Constraint("Vertical", 7))
sketch6.addConstraint(Sketcher.Constraint("Vertical", 9))
sketch6.addConstraint(Sketcher.Constraint("Vertical", 11))
sketch6.addConstraint(Sketcher.Constraint("Coincident", 8, 3, 4, 3))
sketch6.addConstraint(Sketcher.Constraint("Coincident", 10, 3, 2, 3))
sketch6.addConstraint(Sketcher.Constraint("Equal", 4, 8))
sketch6.addConstraint(Sketcher.Constraint("Equal", 2, 10))
sketch6.addConstraint(Sketcher.Constraint("Vertical", 1, 2, 4, 2))
sketch6.addConstraint(Sketcher.Constraint("Radius", 2, 70.84636))
sketch6.addConstraint(Sketcher.Constraint("DistanceY", 1, 2, 1, 1, 12.780402))
sketch6.addConstraint(Sketcher.Constraint("Radius", 4, 66.983178))
sketch6.addConstraint(Sketcher.Constraint("DistanceX", 6, 1, 6, 2, 21.45524))
sketch6.addConstraint(Sketcher.Constraint("DistanceY", 5, 2, 5, 1, 12.010232))
sketch6.addConstraint(Sketcher.Constraint("DistanceY", 9, 2, 9, 1, 68.395818))
sketch6.addConstraint(Sketcher.Constraint("DistanceX", 8, 2, -1, 1, 6.241202))
sketch6.addConstraint(Sketcher.Constraint("DistanceX", 0, 2, 2, 3, 10.968602))
sketch6.addConstraint(Sketcher.Constraint("DistanceY", 1, 2, 5, 2, 55.018298))
sketch6.addConstraint(Sketcher.Constraint("DistanceX", 0, 2, 0, 1, 21.955588))
sketch6.addConstraint(Sketcher.Constraint("DistanceY", 3, 1, 3, 2, 68.298596))
sketch6.addConstraint(Sketcher.Constraint("DistanceY", 7, 1, 7, 2, 12.120256))
sketch6.addConstraint(Sketcher.Constraint("DistanceY", -1, 1, 3, 2, 24.03217))
pad6 = body.newObject("PartDesign::Pad", "Pad005")
pad6.Profile = sketch6
pad6.setExpression("Length", "Params.pad6_length")

sketch7 = body.newObject("Sketcher::SketchObject", "Sketch006")
sketch7.AttachmentSupport = (doc.getObject("XY_Plane"), [""])
sketch7.MapMode = "FlatFace"
sketch7.AttachmentOffset = App.Placement(App.Vector(0, 0, 2), App.Rotation())
add_polygon(sketch7, [(-31, 10), (-31, -29), (-10, -29), (-10, 10)])
sketch7.addConstraint(Sketcher.Constraint("Vertical", 0))
sketch7.addConstraint(Sketcher.Constraint("Horizontal", 1))
sketch7.addConstraint(Sketcher.Constraint("Vertical", 2))
sketch7.addConstraint(Sketcher.Constraint("Horizontal", 3))
sketch7.addConstraint(Sketcher.Constraint("DistanceX", 1, 1, 1, 2, 21.181527))
sketch7.addConstraint(Sketcher.Constraint("DistanceY", 0, 2, 0, 1, 39.670244))
sketch7.addConstraint(Sketcher.Constraint("DistanceX", 1, 2, -1, 1, 10.096231))
sketch7.addConstraint(Sketcher.Constraint("DistanceY", -1, 1, 2, 2, 10.356771))
pocket1 = body.newObject("PartDesign::Pocket", "Pocket")
pocket1.Profile = sketch7
pocket1.setExpression("Length", "Params.pocket1_length")

sketch8 = body.newObject("Sketcher::SketchObject", "Sketch007")
sketch8.AttachmentSupport = (doc.getObject("XY_Plane"), [""])
sketch8.MapMode = "FlatFace"
sketch8.AttachmentOffset = App.Placement(App.Vector(0, 0, 1.5), App.Rotation())
add_polygon(sketch8, [(-31.3, 10.4), (-31.3, 4.2), (-23.9, 10.4)])
add_polygon(sketch8, [(-17.7, 10.4), (-31.3, -1), (-31.3, -5.9), (-11.9, 10.4)])
add_polygon(sketch8, [(-10.1, 6.4), (-31.3, -11.4), (-31.3, -16.3), (-10.1, 1.4)])
add_polygon(sketch8, [(-10.1, -3.2), (-31.3, -21), (-31.3, -25.2), (-10.1, -7.5)])
add_polygon(sketch8, [(-10.1, -16.8), (-10.1, -12.2), (-30.5, -29.3), (-25, -29.3)])
add_polygon(sketch8, [(-10.1, -29.3), (-10.1, -22.3), (-18.4, -29.3)])
sketch8.addConstraint(Sketcher.Constraint("Vertical", 0))
sketch8.addConstraint(Sketcher.Constraint("Horizontal", 2))
sketch8.addConstraint(Sketcher.Constraint("Vertical", 4))
sketch8.addConstraint(Sketcher.Constraint("Horizontal", 6))
sketch8.addConstraint(Sketcher.Constraint("Vertical", 8))
sketch8.addConstraint(Sketcher.Constraint("Vertical", 10))
sketch8.addConstraint(Sketcher.Constraint("Vertical", 12))
sketch8.addConstraint(Sketcher.Constraint("Vertical", 14))
sketch8.addConstraint(Sketcher.Constraint("Vertical", 15))
sketch8.addConstraint(Sketcher.Constraint("Horizontal", 17))
sketch8.addConstraint(Sketcher.Constraint("Vertical", 19))
sketch8.addConstraint(Sketcher.Constraint("Horizontal", 21))
sketch8.addConstraint(Sketcher.Constraint("Parallel", 1, 3))
sketch8.addConstraint(Sketcher.Constraint("Parallel", 3, 5))
sketch8.addConstraint(Sketcher.Constraint("Parallel", 5, 7))
sketch8.addConstraint(Sketcher.Constraint("Parallel", 7, 9))
sketch8.addConstraint(Sketcher.Constraint("Parallel", 9, 11))
sketch8.addConstraint(Sketcher.Constraint("Parallel", 11, 13))
sketch8.addConstraint(Sketcher.Constraint("Parallel", 13, 16))
sketch8.addConstraint(Sketcher.Constraint("Parallel", 16, 18))
sketch8.addConstraint(Sketcher.Constraint("Parallel", 18, 20))
sketch8.addConstraint(Sketcher.Constraint("Horizontal", 2, 2, 5, 2))
sketch8.addConstraint(Sketcher.Constraint("Horizontal", 17, 2, 20, 2))
sketch8.addConstraint(Sketcher.Constraint("Vertical", 2, 2, 3, 2))
sketch8.addConstraint(Sketcher.Constraint("Vertical", 4, 2, 7, 2))
sketch8.addConstraint(Sketcher.Constraint("Vertical", 8, 2, 11, 2))
sketch8.addConstraint(Sketcher.Constraint("Vertical", 10, 2, 13, 2))
sketch8.addConstraint(Sketcher.Constraint("Vertical", 14, 2, 15, 2))
sketch8.addConstraint(Sketcher.Constraint("Vertical", 18, 2, 19, 2))
sketch8.addConstraint(Sketcher.Constraint("DistanceY", 12, 2, 12, 1, 4.220901))
sketch8.addConstraint(Sketcher.Constraint("DistanceX", 21, 1, 21, 2, 8.334928))
sketch8.addConstraint(Sketcher.Constraint("DistanceY", 4, 2, 4, 1, 4.924838))
sketch8.addConstraint(Sketcher.Constraint("DistanceY", 19, 1, 19, 2, 6.995362))
sketch8.addConstraint(Sketcher.Constraint("DistanceY", 4, 2, -1, 1, 5.9375))
sketch8.addConstraint(Sketcher.Constraint("DistanceY", 19, 2, 15, 2, 10.144401))
sketch8.addConstraint(Sketcher.Constraint("DistanceX", 12, 2, 20, 2, 12.846598))
sketch8.addConstraint(Sketcher.Constraint("Distance", 3, 17.685432))
sketch8.addConstraint(Sketcher.Constraint("DistanceX", 2, 2, 2, 1, 7.391093))
sketch8.addConstraint(Sketcher.Constraint("DistanceX", 17, 1, 17, 2, 5.471606))
sketch8.addConstraint(Sketcher.Constraint("DistanceY", 8, 2, 8, 1, 4.924417))
sketch8.addConstraint(Sketcher.Constraint("DistanceX", 5, 2, -1, 1, 11.863239))
sketch8.addConstraint(Sketcher.Constraint("DistanceY", 8, 2, -1, 1, 16.33201))
sketch8.addConstraint(Sketcher.Constraint("DistanceY", 11, 2, -1, 1, 21.02197))
sketch8.addConstraint(Sketcher.Constraint("DistanceY", 15, 2, -1, 1, 12.173711))
pocket2 = body.newObject("PartDesign::Pocket", "Pocket001")
pocket2.Profile = sketch8
pocket2.Type = "ThroughAll"

doc.recompute()
